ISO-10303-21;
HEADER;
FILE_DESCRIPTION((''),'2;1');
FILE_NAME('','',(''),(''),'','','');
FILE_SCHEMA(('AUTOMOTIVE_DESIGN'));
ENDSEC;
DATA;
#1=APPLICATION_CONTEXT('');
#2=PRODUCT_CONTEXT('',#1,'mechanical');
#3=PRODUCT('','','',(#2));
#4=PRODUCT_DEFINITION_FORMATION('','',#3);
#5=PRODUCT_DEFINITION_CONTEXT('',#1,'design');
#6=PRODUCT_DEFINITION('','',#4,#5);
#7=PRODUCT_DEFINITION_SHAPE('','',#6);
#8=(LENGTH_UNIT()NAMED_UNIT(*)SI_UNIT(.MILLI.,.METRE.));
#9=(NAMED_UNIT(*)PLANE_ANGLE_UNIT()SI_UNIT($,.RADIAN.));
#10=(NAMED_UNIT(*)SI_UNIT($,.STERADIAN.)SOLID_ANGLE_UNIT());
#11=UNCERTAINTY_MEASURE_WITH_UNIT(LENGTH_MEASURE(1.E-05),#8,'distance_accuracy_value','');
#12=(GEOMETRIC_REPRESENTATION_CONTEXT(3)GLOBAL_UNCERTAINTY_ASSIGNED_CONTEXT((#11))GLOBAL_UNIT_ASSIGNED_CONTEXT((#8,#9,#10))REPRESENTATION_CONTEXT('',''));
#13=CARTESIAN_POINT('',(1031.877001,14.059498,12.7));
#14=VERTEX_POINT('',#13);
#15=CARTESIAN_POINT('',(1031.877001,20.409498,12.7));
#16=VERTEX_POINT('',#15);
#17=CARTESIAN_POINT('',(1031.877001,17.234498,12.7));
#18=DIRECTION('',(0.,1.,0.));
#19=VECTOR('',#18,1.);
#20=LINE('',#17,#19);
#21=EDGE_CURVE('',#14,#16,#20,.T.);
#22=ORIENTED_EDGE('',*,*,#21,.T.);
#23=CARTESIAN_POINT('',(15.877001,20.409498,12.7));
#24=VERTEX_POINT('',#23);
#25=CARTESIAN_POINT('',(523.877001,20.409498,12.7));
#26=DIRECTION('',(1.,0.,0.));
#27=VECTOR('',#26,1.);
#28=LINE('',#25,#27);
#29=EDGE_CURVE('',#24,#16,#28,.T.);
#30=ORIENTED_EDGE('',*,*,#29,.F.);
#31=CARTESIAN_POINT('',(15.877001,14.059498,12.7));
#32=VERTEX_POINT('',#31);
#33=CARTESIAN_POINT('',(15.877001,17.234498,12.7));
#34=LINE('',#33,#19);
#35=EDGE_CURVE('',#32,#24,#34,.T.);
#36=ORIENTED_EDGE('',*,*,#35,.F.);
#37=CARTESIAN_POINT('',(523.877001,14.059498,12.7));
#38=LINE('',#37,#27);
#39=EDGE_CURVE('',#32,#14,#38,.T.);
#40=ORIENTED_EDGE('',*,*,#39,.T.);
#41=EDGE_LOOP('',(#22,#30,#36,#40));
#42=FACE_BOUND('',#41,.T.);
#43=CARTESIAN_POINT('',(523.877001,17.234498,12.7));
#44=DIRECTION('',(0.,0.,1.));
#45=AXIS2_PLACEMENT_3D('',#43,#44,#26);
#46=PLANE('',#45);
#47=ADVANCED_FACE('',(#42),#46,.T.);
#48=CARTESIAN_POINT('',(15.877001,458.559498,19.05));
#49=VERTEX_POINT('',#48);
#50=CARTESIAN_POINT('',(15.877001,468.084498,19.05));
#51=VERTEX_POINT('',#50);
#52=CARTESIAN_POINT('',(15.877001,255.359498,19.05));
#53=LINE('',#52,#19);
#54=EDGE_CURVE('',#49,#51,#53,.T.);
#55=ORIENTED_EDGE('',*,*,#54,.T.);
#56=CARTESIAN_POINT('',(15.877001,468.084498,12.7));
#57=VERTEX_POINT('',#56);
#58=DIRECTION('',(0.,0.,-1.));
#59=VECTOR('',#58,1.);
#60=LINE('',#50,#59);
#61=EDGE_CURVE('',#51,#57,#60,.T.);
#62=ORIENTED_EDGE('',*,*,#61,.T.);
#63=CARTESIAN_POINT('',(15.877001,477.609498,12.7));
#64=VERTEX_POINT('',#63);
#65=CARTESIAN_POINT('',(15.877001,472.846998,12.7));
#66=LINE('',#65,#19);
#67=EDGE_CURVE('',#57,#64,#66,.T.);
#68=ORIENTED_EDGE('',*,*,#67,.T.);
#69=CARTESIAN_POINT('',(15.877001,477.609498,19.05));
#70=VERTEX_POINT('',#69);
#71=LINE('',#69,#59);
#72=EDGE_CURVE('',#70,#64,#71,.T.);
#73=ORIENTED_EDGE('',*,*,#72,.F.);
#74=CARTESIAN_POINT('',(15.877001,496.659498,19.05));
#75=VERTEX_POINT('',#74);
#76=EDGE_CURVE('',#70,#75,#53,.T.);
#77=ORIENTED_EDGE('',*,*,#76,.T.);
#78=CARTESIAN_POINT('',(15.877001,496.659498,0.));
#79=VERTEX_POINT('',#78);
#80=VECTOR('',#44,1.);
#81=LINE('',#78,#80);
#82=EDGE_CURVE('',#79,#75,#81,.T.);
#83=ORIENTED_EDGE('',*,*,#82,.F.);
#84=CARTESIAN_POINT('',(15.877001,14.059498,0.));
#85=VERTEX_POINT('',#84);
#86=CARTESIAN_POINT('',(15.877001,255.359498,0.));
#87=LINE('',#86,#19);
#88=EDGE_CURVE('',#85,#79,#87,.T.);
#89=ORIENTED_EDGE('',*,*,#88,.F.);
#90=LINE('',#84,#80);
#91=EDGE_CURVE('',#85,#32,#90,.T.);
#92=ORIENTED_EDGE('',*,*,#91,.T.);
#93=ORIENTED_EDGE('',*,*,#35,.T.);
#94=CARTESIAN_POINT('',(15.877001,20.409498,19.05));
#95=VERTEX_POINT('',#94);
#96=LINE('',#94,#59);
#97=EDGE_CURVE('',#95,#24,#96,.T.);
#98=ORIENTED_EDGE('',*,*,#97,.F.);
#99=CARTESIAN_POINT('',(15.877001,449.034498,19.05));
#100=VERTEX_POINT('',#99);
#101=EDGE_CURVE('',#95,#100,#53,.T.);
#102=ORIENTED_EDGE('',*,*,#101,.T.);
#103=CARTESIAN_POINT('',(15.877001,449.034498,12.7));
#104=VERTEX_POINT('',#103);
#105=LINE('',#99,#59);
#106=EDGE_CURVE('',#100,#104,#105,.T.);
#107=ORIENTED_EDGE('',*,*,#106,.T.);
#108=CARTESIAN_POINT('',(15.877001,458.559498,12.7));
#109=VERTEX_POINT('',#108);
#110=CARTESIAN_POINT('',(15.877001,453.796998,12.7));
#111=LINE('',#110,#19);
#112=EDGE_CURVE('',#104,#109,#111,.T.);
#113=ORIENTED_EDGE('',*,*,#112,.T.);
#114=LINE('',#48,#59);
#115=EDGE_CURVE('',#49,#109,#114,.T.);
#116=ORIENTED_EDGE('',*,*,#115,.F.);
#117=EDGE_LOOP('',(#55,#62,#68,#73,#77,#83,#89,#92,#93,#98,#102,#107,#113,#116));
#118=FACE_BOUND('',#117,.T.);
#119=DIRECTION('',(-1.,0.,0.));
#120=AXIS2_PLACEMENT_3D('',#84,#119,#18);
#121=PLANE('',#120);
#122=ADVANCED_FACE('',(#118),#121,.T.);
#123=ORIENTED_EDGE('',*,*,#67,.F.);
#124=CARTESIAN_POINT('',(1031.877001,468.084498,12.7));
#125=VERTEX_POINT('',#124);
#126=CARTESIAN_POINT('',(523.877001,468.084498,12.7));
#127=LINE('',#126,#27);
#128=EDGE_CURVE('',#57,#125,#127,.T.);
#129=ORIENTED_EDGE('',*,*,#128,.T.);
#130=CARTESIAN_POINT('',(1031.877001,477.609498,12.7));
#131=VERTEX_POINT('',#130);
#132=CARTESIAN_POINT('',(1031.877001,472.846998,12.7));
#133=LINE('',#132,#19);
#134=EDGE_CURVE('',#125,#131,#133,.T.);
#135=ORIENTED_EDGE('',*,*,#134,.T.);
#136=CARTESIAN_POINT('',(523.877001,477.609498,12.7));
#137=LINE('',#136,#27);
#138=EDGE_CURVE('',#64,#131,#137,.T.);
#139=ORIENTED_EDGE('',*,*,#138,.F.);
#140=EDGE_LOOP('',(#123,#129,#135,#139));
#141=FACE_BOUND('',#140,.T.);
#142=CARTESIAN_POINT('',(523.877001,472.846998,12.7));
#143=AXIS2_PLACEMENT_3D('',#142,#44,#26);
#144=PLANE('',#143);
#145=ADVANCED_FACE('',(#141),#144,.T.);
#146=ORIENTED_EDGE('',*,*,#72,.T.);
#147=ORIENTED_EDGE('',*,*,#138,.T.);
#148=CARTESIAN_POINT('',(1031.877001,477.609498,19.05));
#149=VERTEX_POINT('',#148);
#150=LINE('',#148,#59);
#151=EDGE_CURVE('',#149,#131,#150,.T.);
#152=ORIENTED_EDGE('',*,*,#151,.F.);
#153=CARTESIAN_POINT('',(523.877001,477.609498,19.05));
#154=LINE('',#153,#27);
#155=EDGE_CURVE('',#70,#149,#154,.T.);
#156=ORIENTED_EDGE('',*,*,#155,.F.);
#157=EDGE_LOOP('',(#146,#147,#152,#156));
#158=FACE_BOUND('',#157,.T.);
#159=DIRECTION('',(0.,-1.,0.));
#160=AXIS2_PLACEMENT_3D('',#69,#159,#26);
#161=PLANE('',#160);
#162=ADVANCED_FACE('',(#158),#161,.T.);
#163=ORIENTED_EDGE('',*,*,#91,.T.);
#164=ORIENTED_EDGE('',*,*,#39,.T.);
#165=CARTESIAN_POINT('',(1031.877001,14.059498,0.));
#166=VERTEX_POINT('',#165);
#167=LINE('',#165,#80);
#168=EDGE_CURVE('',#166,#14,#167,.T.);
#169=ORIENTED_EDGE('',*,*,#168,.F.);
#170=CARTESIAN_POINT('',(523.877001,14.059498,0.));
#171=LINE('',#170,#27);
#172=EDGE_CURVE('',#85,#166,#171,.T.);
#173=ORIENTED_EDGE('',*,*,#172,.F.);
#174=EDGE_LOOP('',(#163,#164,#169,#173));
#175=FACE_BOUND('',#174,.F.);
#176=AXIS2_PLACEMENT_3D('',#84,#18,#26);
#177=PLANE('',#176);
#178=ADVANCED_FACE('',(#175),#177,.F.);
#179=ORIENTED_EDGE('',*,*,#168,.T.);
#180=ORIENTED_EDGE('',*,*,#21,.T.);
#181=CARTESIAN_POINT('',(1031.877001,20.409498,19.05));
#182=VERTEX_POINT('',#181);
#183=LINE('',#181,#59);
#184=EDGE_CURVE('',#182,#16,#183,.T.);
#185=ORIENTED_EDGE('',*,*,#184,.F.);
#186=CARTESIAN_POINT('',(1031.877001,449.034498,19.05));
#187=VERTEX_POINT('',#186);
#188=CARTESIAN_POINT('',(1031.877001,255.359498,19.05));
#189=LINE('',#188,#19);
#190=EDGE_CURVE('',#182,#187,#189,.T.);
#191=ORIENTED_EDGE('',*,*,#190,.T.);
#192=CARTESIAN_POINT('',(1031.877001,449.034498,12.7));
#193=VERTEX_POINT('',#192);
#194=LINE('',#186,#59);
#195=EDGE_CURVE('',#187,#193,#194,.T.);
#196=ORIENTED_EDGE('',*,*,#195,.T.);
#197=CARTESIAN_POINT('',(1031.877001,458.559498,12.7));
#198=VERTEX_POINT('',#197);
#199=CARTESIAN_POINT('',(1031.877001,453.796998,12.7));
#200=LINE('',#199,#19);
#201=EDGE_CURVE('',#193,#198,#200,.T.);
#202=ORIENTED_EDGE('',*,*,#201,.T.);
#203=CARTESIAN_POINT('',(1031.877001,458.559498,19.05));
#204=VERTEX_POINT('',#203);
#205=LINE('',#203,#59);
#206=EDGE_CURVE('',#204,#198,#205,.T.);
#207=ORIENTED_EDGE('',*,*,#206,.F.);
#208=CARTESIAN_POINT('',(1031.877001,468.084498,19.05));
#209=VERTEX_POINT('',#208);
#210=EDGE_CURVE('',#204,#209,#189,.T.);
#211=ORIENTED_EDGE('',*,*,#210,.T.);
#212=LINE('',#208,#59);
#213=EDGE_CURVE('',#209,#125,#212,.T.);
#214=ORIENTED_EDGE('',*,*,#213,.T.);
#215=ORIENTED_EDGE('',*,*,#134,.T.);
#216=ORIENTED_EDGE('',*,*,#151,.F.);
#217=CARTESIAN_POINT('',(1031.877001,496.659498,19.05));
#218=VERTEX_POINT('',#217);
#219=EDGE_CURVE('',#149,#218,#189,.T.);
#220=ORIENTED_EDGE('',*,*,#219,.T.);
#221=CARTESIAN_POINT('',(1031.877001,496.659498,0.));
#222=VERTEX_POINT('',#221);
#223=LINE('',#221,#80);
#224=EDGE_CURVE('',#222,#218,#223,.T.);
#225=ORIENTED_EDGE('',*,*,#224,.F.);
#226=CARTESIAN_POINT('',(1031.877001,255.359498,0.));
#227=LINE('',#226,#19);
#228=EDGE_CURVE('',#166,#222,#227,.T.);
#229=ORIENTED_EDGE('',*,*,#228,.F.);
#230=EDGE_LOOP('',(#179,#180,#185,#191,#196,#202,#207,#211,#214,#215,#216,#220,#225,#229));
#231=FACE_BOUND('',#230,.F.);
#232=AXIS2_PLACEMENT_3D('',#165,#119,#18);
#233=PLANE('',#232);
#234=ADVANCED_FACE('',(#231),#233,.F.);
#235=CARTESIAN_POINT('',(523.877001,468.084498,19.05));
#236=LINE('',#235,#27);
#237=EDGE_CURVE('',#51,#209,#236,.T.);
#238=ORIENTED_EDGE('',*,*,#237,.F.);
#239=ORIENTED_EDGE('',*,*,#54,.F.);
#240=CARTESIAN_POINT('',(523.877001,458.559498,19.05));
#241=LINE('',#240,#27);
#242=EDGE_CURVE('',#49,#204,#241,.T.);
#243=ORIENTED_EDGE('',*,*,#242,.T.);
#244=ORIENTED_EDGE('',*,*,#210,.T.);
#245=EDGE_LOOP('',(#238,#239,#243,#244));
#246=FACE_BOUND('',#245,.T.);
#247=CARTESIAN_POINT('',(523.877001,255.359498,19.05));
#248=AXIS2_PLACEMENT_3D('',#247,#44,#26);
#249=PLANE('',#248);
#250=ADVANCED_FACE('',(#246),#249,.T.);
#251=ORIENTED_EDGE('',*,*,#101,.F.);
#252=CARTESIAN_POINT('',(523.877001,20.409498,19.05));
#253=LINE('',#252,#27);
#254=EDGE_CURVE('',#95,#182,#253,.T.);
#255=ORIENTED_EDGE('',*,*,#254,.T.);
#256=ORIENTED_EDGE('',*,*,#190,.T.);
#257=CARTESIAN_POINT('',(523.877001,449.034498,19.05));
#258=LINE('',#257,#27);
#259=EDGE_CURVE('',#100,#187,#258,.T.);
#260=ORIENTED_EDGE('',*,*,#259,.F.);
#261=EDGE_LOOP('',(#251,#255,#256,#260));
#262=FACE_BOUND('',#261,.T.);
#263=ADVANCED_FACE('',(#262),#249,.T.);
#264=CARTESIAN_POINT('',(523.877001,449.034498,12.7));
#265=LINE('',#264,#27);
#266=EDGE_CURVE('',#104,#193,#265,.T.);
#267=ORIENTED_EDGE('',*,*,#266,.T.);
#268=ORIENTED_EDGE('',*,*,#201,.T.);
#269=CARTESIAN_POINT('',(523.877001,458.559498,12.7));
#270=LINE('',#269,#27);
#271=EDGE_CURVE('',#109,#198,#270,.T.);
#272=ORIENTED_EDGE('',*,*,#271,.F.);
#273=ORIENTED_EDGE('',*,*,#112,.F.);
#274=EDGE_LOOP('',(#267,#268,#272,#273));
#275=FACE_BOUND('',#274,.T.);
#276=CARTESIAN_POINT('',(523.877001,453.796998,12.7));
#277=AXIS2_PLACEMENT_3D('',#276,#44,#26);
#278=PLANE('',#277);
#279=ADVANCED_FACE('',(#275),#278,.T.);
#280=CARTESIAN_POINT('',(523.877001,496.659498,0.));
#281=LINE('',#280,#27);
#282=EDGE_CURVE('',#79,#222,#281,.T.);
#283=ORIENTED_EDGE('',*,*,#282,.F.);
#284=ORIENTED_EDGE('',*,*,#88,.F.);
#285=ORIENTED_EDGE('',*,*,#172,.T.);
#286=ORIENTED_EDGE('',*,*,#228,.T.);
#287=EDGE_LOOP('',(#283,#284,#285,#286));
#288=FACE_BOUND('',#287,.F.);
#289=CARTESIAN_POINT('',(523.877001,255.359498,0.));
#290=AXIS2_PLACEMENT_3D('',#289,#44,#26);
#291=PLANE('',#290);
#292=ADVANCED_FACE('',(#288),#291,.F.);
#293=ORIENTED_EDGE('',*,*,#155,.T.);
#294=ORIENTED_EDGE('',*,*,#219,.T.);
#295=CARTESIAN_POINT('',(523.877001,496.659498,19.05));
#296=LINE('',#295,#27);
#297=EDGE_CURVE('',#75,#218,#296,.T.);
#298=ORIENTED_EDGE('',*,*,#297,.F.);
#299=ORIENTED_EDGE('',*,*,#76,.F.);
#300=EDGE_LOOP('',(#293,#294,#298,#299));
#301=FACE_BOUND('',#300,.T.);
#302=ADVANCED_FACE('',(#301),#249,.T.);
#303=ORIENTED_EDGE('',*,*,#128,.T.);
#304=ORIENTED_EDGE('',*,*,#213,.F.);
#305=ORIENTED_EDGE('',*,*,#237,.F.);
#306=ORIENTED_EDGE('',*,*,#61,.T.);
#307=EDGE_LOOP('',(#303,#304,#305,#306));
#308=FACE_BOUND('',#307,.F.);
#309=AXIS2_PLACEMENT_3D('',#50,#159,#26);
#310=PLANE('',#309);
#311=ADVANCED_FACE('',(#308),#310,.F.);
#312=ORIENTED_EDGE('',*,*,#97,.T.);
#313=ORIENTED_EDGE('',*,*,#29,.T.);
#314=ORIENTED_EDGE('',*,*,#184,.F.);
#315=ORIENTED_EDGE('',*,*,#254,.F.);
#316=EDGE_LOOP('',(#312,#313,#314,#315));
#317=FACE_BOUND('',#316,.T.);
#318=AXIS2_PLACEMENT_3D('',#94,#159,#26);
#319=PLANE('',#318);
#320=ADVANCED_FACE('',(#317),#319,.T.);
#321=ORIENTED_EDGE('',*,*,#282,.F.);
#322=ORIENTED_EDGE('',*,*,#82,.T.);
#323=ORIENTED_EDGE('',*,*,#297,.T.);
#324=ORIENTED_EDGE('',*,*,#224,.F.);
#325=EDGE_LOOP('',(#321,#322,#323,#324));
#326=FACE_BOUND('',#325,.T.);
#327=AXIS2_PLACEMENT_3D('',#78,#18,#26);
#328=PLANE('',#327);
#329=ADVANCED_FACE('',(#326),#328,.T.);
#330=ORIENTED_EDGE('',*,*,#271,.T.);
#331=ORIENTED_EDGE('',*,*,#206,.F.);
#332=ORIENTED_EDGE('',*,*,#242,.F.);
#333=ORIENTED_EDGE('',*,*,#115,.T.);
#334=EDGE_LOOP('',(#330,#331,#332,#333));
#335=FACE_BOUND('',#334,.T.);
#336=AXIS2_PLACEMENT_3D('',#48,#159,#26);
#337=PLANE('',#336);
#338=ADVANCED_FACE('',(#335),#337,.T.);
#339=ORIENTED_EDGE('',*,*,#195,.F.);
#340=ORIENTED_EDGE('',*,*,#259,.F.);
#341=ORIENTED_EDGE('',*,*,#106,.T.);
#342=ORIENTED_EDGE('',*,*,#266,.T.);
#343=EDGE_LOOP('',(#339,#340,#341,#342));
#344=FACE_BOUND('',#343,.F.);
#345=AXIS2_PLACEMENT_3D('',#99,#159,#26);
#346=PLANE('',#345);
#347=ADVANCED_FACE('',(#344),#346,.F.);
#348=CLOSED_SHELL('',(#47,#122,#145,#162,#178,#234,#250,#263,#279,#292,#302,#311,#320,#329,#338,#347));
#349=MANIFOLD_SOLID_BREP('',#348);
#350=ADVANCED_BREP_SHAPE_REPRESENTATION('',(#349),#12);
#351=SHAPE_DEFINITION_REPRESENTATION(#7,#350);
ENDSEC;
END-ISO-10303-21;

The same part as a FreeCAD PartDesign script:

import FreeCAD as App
import Part
import Sketcher
from FreeCAD import Vector
Q = App.Units.Quantity


def add_polygon(sketch, points):
    """Adds a closed chain of lines whose ends are joined by coincident constraints."""
    first, n = sketch.GeometryCount, len(points)
    for a, b in zip(points, points[1:] + points[:1]):
        sketch.addGeometry(Part.LineSegment(App.Vector(*a, 0), App.Vector(*b, 0)), False)
    for i in range(n):
        sketch.addConstraint(Sketcher.Constraint("Coincident", first + i, 2, first + (i + 1) % n, 1))

doc = App.newDocument("Part")
params = doc.addObject("Spreadsheet::Sheet", "Params")
for row, (alias, value) in enumerate([
    ("sketch1_width", "40 in"),
    ("sketch1_height", "19 in"),
    ("pad1_length", "0.75 in"),
    ("sketch2_width", "40 in"),
    ("sketch2_height", "0.25 in"),
    ("sketch2_height2", "0.375 in"),
    ("pocket1_length", "0.25 in"),
], start=1):
    params.set(f"A{row}", alias)
    params.set(f"B{row}", "=" + value)
    params.setAlias(f"B{row}", alias)

body = doc.addObject("PartDesign::Body", "Body")

sketch1 = body.newObject("Sketcher::SketchObject", "Sketch")
sketch1.AttachmentSupport = (doc.getObject("XY_Plane"), [""])
sketch1.MapMode = "FlatFace"
add_polygon(sketch1, [(16, 497), (16, 14), (1032, 14), (1032, 497)])
sketch1.addConstraint([
    Sketcher.Constraint("Vertical", 0),
    Sketcher.Constraint("Horizontal", 1),
    Sketcher.Constraint("Vertical", 2),
    Sketcher.Constraint("Horizontal", 3),
    Sketcher.Constraint("DistanceX", 1, 1, 1, 2, Q("40 in")),
    Sketcher.Constraint("DistanceY", 0, 2, 0, 1, Q("19 in")),
    Sketcher.Constraint("DistanceX", -1, 1, 0, 2, 15.877001),
    Sketcher.Constraint("DistanceY", -1, 1, 2, 2, 496.659498),
])
sketch1.setExpression("Constraints[8]", "Params.sketch1_width")
sketch1.setExpression("Constraints[9]", "Params.sketch1_height")
pad1 = body.newObject("PartDesign::Pad", "Pad")
pad1.Profile = sketch1
pad1.setExpression("Length", "Params.pad1_length")

sketch2 = body.newObject("Sketcher::SketchObject", "Sketch001")
sketch2.AttachmentSupport = (doc.getObject("XY_Plane"), [""])
sketch2.MapMode = "FlatFace"
sketch2.AttachmentOffset = App.Placement(Vector(0, 0, 0.75 * 25.4), App.Rotation())
add_polygon(sketch2, [(16, 478), (16, 468), (1032, 468), (1032, 478)])
add_polygon(sketch2, [(16, 459), (16, 449), (1032, 449), (1032, 459)])
add_polygon(sketch2, [(16, 20), (16, 14), (1032, 14), (1032, 20)])
sketch2.addConstraint([
    Sketcher.Constraint("Vertical", 0),
    Sketcher.Constraint("Horizontal", 1),
    Sketcher.Constraint("Vertical", 2),
    Sketcher.Constraint("Horizontal", 3),
    Sketcher.Constraint("Vertical", 4),
    Sketcher.Constraint("Horizontal", 5),
    Sketcher.Constraint("Vertical", 6),
    Sketcher.Constraint("Horizontal", 7),
    Sketcher.Constraint("Vertical", 8),
    Sketcher.Constraint("Horizontal", 9),
    Sketcher.Constraint("Vertical", 10),
    Sketcher.Constraint("Horizontal", 11),
    Sketcher.Constraint("Vertical", 3, 2, 4, 2),
    Sketcher.Constraint("Vertical", 2, 2, 5, 2),
    Sketcher.Constraint("Vertical", 7, 2, 8, 2),
    Sketcher.Constraint("Vertical", 6, 2, 9, 2),
    Sketcher.Constraint("Equal", 2, 4),
    Sketcher.Constraint("DistanceX", 1, 1, 1, 2, Q("40 in")),
    Sketcher.Constraint("DistanceY", 10, 2, 2, 2, Q("18 in")),
    Sketcher.Constraint("DistanceY", 8, 2, 8, 1, Q("0.25 in")),
    Sketcher.Constraint("DistanceY", 8, 2, 7, 2, Q("17.5 in")),
    Sketcher.Constraint("DistanceY", 0, 2, 0, 1, Q("0.375 in")),
    Sketcher.Constraint("DistanceX", -1, 1, 0, 2, 15.877001),
    Sketcher.Constraint("DistanceY", -1, 1, 0, 2, 468.084498),
])
sketch2.setExpression("Constraints[29]", "Params.sketch2_width")
sketch2.setExpression("Constraints[31]", "Params.sketch2_height")
sketch2.setExpression("Constraints[33]", "Params.sketch2_height2")
pocket1 = body.newObject("PartDesign::Pocket", "Pocket")
pocket1.Profile = sketch2
pocket1.setExpression("Length", "Params.pocket1_length")

doc.recompute()
